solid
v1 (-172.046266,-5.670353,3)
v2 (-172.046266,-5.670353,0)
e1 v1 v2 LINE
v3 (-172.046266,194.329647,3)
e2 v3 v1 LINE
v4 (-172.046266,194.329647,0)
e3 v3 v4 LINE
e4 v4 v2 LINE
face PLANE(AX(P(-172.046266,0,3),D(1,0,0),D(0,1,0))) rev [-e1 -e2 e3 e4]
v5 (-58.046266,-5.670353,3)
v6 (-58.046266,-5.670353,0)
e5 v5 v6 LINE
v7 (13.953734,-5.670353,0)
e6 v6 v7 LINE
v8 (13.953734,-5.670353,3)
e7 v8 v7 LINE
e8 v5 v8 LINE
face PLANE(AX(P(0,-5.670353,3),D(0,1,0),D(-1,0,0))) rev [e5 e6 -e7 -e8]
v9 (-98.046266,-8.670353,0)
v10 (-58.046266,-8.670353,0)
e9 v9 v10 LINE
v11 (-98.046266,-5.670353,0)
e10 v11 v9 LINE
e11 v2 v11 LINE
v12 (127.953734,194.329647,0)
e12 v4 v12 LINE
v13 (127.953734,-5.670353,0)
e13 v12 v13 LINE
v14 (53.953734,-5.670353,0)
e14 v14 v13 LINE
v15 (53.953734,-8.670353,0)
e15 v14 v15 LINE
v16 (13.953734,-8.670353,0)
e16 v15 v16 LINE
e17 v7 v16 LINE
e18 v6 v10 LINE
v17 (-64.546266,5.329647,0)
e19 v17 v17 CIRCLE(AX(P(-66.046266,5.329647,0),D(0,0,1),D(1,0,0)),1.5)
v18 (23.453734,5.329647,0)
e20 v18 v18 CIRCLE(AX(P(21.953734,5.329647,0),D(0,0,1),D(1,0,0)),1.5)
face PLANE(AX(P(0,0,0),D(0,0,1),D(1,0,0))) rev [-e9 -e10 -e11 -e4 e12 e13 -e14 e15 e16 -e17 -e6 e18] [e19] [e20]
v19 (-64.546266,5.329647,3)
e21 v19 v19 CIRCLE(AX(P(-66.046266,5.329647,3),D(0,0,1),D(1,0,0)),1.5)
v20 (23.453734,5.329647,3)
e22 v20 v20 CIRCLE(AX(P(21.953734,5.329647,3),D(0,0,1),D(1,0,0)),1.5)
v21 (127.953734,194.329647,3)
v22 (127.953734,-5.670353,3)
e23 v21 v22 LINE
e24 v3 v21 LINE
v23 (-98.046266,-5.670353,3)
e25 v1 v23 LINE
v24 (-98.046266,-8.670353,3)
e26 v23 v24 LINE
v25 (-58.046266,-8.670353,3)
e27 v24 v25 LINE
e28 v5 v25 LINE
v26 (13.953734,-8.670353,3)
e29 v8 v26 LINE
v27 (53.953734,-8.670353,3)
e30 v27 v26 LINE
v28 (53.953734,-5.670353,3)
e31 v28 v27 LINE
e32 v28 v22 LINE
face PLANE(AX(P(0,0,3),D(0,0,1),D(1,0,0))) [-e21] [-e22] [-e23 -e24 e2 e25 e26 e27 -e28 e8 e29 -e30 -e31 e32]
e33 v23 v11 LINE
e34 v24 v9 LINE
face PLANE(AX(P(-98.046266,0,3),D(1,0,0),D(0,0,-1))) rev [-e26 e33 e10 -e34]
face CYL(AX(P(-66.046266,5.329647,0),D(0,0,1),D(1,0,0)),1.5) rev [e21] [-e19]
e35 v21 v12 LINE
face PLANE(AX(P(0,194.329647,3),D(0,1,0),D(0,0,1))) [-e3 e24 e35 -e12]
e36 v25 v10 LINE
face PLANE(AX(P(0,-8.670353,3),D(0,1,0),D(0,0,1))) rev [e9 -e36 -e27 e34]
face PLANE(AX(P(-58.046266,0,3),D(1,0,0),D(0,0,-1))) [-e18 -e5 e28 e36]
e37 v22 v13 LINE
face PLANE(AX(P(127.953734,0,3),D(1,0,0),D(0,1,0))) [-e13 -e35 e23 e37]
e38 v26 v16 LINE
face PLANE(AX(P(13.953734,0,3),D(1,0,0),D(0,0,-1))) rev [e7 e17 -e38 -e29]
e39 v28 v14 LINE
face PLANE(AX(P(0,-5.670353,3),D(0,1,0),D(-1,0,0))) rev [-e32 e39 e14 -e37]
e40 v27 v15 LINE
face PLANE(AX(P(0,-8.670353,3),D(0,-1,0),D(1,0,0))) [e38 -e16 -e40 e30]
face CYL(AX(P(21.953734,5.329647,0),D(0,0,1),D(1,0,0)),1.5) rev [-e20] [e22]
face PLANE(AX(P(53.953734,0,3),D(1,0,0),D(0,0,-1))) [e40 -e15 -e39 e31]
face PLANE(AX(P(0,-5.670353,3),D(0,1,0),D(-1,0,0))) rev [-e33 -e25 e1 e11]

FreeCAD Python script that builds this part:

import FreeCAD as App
import Part
import Sketcher


def add_polygon(sketch, points):
    """Adds a closed chain of lines whose ends are joined by coincident constraints."""
    first, n = sketch.GeometryCount, len(points)
    for a, b in zip(points, points[1:] + points[:1]):
        sketch.addGeometry(Part.LineSegment(App.Vector(*a, 0), App.Vector(*b, 0)), False)
    for i in range(n):
        sketch.addConstraint(Sketcher.Constraint("Coincident", first + i, 2, first + (i + 1) % n, 1))

doc = App.newDocument("Part")
body = doc.addObject("PartDesign::Body", "Body")

# Sketch on XY plane
sketch1 = body.newObject("Sketcher::SketchObject", "Sketch")
sketch1.AttachmentSupport = (doc.getObject("XY_Plane"), [""])
sketch1.MapMode = "FlatFace"
add_polygon(sketch1, [(-58.046266, -5.670353), (13.953734, -5.670353), (13.953734, -8.670353), (53.953734, -8.670353), (53.953734, -5.670353), (127.953734, -5.670353), (127.953734, 194.329647), (-172.046266, 194.329647), (-172.046266, -5.670353), (-98.046266, -5.670353), (-98.046266, -8.670353), (-58.046266, -8.670353)])  # lines 0-11
sketch1.addConstraint([
    Sketcher.Constraint("Horizontal", 0),
    Sketcher.Constraint("Vertical", 1),
    Sketcher.Constraint("Horizontal", 2),
    Sketcher.Constraint("Vertical", 3),
    Sketcher.Constraint("Horizontal", 4),
    Sketcher.Constraint("Vertical", 5),
    Sketcher.Constraint("Horizontal", 6),
    Sketcher.Constraint("Vertical", 7),
    Sketcher.Constraint("Horizontal", 8),
    Sketcher.Constraint("Vertical", 9),
    Sketcher.Constraint("Horizontal", 10),
    Sketcher.Constraint("Vertical", 11),
    Sketcher.Constraint("Horizontal", 0, 2, 3, 2),
    Sketcher.Constraint("Horizontal", 4, 2, 7, 2),
    Sketcher.Constraint("Horizontal", 2, 2, 9, 2),
    Sketcher.Constraint("Equal", 4, 8),
    Sketcher.Constraint("Equal", 2, 10),
    Sketcher.Constraint("DistanceX", 0, 1, 0, 2, 72.0),
    Sketcher.Constraint("DistanceX", 2, 1, 2, 2, 40.0),
    Sketcher.Constraint("DistanceX", 4, 1, 4, 2, 74.0),
    Sketcher.Constraint("DistanceY", 1, 2, 1, 1, 3.0),
    Sketcher.Constraint("DistanceY", 5, 1, 5, 2, 200.0),
    Sketcher.Constraint("DistanceX", -1, 1, 0, 2, 13.953734),
    Sketcher.Constraint("DistanceY", 0, 2, -1, 1, 5.670353),
])
pad1 = body.newObject("PartDesign::Pad", "Pad")
pad1.Profile = sketch1
pad1.Length = 3

# Sketch on XY plane
sketch2 = body.newObject("Sketcher::SketchObject", "Sketch001")
sketch2.AttachmentSupport = (doc.getObject("XY_Plane"), [""])
sketch2.MapMode = "FlatFace"
sketch2.AttachmentOffset = App.Placement(App.Vector(0, 0, 3), App.Rotation())
sketch2.addGeometry([
    Part.Circle(App.Vector(-66.046266, 5.329647, 0), App.Vector(0, 0, 1), 1.5),
    Part.Circle(App.Vector(21.953734, 5.329647, 0), App.Vector(0, 0, 1), 1.5),
], False)
sketch2.addConstraint([
    Sketcher.Constraint("Equal", 0, 1),
    Sketcher.Constraint("Horizontal", 0, 3, 1, 3),
    Sketcher.Constraint("Diameter", 0, 3.0),
    Sketcher.Constraint("DistanceX", 0, 3, 1, 3, 88.0),
    Sketcher.Constraint("DistanceX", 0, 3, -1, 1, 66.046266),
    Sketcher.Constraint("DistanceY", -1, 1, 0, 3, 5.329647),
])
pocket1 = body.newObject("PartDesign::Pocket", "Pocket")
pocket1.Profile = sketch2
pocket1.Type = "ThroughAll"

doc.recompute()
